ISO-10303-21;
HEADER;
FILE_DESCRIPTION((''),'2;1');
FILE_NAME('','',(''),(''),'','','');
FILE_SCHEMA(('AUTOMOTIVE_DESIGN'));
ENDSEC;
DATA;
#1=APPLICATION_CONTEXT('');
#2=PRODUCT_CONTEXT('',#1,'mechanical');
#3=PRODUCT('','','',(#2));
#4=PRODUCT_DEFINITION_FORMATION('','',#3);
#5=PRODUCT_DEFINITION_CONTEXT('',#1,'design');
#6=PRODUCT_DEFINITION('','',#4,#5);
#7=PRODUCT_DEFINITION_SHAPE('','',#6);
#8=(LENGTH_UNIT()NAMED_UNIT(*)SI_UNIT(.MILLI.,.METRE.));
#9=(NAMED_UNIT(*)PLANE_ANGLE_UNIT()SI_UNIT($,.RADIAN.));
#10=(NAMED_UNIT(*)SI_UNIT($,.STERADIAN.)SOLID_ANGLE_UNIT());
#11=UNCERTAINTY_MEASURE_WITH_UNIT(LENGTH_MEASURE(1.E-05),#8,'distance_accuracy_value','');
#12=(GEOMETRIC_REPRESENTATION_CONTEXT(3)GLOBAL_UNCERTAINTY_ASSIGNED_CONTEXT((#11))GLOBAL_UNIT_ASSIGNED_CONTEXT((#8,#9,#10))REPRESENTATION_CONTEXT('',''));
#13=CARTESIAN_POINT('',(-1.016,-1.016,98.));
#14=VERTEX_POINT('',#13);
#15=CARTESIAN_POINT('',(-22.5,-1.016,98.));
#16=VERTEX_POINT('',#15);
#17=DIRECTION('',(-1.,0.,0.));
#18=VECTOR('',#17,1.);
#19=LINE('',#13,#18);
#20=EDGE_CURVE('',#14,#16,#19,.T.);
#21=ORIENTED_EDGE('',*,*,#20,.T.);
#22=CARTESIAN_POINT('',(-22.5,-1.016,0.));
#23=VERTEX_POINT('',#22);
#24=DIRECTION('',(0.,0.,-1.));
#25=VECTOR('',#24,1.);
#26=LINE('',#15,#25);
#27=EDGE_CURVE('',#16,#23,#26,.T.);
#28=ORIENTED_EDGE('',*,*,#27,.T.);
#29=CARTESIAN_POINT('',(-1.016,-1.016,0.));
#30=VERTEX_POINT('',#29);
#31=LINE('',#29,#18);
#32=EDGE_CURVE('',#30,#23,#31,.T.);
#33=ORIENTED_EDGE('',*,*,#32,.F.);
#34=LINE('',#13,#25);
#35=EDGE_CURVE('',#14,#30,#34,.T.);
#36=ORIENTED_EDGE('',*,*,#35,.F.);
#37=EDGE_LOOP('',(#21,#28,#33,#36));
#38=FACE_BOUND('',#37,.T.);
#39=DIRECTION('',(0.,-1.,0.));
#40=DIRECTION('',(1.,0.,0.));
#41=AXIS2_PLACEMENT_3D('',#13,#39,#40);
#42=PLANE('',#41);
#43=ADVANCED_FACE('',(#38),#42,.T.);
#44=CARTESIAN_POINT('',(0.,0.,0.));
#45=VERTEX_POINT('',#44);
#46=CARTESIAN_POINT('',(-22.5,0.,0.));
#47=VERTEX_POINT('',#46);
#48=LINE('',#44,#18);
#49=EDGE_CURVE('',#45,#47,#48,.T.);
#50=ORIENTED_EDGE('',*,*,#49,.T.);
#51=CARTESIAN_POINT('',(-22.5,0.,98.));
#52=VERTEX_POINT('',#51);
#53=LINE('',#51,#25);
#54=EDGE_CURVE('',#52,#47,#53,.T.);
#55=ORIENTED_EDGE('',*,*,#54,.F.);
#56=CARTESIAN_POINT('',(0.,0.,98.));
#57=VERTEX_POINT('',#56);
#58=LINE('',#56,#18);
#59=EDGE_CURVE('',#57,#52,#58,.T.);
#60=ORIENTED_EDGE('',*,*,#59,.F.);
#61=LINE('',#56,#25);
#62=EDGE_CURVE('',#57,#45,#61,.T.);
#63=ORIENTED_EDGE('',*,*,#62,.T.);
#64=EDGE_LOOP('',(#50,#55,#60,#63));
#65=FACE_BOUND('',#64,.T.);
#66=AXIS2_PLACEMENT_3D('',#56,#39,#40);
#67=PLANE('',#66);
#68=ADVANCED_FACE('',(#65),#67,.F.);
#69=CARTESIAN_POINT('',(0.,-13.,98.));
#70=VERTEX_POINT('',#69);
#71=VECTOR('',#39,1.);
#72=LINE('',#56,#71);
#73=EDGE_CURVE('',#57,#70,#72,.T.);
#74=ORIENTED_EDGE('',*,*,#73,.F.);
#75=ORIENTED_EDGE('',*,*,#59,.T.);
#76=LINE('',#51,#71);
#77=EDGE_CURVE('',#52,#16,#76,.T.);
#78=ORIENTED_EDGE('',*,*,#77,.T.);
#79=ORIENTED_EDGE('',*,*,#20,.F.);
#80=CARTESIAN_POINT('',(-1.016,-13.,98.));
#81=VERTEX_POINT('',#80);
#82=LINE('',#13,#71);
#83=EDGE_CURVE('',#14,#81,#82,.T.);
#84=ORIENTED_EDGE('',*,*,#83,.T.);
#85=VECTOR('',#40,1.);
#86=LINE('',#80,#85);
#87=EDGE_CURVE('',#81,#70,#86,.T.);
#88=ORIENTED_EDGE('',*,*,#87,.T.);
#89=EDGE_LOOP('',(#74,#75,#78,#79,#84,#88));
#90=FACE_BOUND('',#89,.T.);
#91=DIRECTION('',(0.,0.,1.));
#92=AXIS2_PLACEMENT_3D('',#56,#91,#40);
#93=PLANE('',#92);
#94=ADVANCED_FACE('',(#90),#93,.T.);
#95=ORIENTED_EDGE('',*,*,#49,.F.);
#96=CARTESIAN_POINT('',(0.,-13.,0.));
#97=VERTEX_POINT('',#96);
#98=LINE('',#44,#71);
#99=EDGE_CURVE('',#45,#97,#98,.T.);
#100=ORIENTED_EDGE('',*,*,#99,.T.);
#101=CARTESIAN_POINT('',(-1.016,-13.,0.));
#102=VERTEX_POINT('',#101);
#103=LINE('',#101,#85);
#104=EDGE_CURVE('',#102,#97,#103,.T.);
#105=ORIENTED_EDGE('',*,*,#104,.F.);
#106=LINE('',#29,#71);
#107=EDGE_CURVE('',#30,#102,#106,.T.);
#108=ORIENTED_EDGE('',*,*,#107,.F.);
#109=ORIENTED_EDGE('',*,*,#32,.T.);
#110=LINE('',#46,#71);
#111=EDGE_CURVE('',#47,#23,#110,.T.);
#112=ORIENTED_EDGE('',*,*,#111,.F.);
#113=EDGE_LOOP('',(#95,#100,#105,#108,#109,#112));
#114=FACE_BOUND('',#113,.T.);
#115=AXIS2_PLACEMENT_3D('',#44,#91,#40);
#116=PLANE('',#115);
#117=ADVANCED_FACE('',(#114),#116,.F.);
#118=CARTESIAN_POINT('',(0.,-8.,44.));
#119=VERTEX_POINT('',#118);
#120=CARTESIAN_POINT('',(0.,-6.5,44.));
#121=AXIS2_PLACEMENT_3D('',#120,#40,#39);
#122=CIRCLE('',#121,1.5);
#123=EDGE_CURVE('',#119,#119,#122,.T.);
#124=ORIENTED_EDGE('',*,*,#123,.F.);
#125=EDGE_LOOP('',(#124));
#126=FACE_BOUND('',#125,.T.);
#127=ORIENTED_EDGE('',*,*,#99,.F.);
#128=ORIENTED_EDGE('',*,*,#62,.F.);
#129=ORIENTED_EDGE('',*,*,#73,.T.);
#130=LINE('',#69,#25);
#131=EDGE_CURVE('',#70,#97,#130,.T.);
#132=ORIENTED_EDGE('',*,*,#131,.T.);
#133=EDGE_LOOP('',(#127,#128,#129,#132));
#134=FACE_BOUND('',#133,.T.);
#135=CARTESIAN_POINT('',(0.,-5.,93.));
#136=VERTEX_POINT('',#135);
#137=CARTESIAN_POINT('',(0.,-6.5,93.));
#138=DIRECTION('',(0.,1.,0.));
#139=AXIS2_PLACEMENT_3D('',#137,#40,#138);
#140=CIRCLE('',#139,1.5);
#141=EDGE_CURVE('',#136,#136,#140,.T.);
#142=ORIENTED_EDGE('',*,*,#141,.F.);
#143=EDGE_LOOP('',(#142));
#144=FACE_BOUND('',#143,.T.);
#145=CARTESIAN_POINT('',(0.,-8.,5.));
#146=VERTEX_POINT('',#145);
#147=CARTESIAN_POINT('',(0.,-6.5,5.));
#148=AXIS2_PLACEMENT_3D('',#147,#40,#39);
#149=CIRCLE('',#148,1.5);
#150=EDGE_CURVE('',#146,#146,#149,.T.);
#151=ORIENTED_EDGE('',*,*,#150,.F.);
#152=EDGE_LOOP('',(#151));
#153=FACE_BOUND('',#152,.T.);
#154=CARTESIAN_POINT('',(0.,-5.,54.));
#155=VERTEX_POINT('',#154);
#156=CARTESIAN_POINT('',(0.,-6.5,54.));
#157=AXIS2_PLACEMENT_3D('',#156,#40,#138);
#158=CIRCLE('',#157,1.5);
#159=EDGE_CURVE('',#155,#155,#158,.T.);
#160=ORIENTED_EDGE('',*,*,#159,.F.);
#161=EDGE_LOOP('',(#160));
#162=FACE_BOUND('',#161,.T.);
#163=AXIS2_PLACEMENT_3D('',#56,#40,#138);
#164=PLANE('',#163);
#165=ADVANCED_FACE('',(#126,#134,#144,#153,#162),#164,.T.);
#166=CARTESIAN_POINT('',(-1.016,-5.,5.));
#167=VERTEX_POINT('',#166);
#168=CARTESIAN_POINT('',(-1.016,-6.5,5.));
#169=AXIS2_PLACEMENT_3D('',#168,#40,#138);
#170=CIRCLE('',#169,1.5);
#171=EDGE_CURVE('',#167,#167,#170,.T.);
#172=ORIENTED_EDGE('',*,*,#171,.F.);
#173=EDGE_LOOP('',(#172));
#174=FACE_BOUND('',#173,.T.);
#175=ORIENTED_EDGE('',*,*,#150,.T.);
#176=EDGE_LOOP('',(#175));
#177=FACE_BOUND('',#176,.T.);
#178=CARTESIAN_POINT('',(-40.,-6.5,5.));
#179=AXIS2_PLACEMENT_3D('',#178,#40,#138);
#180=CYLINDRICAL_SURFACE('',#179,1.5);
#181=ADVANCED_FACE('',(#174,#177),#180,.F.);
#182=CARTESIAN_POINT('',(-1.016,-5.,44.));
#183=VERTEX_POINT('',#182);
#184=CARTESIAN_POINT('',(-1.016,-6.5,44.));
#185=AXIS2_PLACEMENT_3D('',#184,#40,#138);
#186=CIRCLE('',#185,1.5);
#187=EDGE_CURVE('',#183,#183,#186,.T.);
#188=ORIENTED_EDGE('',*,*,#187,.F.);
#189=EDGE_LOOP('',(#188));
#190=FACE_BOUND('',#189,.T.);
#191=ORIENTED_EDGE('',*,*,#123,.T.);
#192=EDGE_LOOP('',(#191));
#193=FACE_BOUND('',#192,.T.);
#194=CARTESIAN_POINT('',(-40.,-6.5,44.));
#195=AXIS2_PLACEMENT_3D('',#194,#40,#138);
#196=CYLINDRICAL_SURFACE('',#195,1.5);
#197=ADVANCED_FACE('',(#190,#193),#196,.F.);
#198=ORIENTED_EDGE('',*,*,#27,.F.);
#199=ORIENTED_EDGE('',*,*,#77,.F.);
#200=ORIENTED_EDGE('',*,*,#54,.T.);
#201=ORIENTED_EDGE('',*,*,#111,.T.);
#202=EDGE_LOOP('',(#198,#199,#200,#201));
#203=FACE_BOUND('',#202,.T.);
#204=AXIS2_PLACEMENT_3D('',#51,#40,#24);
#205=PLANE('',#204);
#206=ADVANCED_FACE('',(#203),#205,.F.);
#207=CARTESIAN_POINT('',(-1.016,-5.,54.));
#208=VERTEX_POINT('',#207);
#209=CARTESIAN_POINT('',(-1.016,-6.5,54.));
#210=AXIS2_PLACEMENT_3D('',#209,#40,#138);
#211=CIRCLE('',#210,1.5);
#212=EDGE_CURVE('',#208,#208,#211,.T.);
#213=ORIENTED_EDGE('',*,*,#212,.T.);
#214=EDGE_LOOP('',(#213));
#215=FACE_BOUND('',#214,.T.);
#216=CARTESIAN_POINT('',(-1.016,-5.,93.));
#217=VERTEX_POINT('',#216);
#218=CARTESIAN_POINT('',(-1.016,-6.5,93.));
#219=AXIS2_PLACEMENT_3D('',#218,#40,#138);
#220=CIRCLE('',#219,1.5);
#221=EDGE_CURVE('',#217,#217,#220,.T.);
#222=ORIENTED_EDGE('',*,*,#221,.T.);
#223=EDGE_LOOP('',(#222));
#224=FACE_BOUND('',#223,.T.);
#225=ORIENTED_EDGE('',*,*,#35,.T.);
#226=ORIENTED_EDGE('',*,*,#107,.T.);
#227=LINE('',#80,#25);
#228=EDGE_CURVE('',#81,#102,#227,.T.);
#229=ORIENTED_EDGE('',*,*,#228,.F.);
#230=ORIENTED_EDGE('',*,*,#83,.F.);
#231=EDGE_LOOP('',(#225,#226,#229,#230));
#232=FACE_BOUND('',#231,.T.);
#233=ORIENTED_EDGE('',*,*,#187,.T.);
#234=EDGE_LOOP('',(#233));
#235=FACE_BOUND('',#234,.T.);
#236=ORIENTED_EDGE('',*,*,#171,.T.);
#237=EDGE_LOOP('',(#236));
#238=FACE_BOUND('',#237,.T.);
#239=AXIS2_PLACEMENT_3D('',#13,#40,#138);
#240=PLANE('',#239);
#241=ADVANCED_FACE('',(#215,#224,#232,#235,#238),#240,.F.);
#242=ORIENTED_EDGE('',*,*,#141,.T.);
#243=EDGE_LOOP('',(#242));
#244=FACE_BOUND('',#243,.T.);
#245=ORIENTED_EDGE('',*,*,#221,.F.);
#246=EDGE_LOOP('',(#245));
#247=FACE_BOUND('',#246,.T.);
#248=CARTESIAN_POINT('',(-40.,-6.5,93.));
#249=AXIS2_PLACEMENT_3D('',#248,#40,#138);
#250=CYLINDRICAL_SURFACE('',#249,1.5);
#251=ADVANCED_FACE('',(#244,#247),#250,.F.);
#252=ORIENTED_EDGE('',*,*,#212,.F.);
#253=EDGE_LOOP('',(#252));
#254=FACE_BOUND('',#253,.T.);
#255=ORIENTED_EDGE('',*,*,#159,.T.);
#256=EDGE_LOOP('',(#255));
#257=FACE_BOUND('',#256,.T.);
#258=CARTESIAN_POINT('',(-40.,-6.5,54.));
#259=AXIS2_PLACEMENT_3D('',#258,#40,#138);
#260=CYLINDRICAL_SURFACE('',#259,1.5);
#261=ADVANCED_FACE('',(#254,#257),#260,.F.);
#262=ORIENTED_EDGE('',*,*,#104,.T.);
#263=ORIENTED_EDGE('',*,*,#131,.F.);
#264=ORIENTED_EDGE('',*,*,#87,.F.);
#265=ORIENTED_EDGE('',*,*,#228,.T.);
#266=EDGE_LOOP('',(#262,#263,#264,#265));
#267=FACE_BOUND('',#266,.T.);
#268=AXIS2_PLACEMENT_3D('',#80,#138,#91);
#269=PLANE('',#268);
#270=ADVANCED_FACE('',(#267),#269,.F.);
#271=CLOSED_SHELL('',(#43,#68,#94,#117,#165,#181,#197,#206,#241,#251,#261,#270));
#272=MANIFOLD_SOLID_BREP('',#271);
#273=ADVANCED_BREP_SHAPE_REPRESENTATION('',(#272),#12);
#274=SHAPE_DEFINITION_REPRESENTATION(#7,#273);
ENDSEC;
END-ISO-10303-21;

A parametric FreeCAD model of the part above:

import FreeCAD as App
import Part
import Sketcher
from FreeCAD import Vector

doc = App.newDocument("Part")
body = doc.addObject("PartDesign::Body", "Body")

sketch1 = doc.addObject("Sketcher::SketchObject", "Sketch")
body.addObject(sketch1)
sketch1.AttachmentSupport = (doc.XY_Plane, [""])
sketch1.MapMode = "FlatFace"
sketch1.addGeometry(Part.LineSegment(Vector(0, 0, 0), Vector(-22.5, 0, 0)), False)
sketch1.addGeometry(Part.LineSegment(Vector(-22.5, 0, 0), Vector(-22.5, -1, 0)), False)
sketch1.addGeometry(Part.LineSegment(Vector(-22.5, -1, 0), Vector(-1, -1, 0)), False)
sketch1.addGeometry(Part.LineSegment(Vector(-1, -1, 0), Vector(-1, -13, 0)), False)
sketch1.addGeometry(Part.LineSegment(Vector(-1, -13, 0), Vector(0, -13, 0)), False)
sketch1.addGeometry(Part.LineSegment(Vector(0, -13, 0), Vector(0, 0, 0)), False)
sketch1.addConstraint(Sketcher.Constraint("Coincident", 0, 2, 1, 1))
sketch1.addConstraint(Sketcher.Constraint("Coincident", 1, 2, 2, 1))
sketch1.addConstraint(Sketcher.Constraint("Coincident", 2, 2, 3, 1))
sketch1.addConstraint(Sketcher.Constraint("Coincident", 3, 2, 4, 1))
sketch1.addConstraint(Sketcher.Constraint("Coincident", 4, 2, 5, 1))
sketch1.addConstraint(Sketcher.Constraint("Coincident", 5, 2, 0, 1))
sketch1.addConstraint(Sketcher.Constraint("Horizontal", 0))
sketch1.addConstraint(Sketcher.Constraint("Vertical", 1))
sketch1.addConstraint(Sketcher.Constraint("Horizontal", 2))
sketch1.addConstraint(Sketcher.Constraint("Vertical", 3))
sketch1.addConstraint(Sketcher.Constraint("Horizontal", 4))
sketch1.addConstraint(Sketcher.Constraint("Vertical", 5))
sketch1.addConstraint(Sketcher.Constraint("Coincident", 5, 2, -1, 1))
sketch1.addConstraint(Sketcher.Constraint("Equal", 4, 1))
sketch1.addConstraint(Sketcher.Constraint("DistanceY", 5, 1, 5, 2, 13.0))
sketch1.addConstraint(Sketcher.Constraint("DistanceX", 0, 2, 0, 1, 22.5))
sketch1.addConstraint(Sketcher.Constraint("DistanceX", 2, 1, 2, 2, 21.484))
pad1 = doc.addObject("PartDesign::Pad", "Pad")
body.addObject(pad1)
pad1.Profile = sketch1
pad1.Length = 98

sketch2 = doc.addObject("Sketcher::SketchObject", "Sketch001")
body.addObject(sketch2)
sketch2.AttachmentSupport = (doc.YZ_Plane, [""])
sketch2.MapMode = "FlatFace"
sketch2.addGeometry(Part.Circle(Vector(-6.5, 93, 0), Vector(0, 0, 1), 1.5), False)
sketch2.addGeometry(Part.Circle(Vector(-6.5, 54, 0), Vector(0, 0, 1), 1.5), False)
sketch2.addGeometry(Part.Circle(Vector(-6.5, 44, 0), Vector(0, 0, 1), 1.5), False)
sketch2.addGeometry(Part.Circle(Vector(-6.5, 5, 0), Vector(0, 0, 1), 1.5), False)
sketch2.addConstraint(Sketcher.Constraint("Equal", 0, 1))
sketch2.addConstraint(Sketcher.Constraint("Equal", 1, 2))
sketch2.addConstraint(Sketcher.Constraint("Equal", 2, 3))
sketch2.addConstraint(Sketcher.Constraint("Vertical", 0, 3, 1, 3))
sketch2.addConstraint(Sketcher.Constraint("Vertical", 1, 3, 2, 3))
sketch2.addConstraint(Sketcher.Constraint("Vertical", 2, 3, 3, 3))
sketch2.addConstraint(Sketcher.Constraint("Diameter", 0, 3.0))
sketch2.addConstraint(Sketcher.Constraint("DistanceY", -1, 1, 0, 3, 93.0))
sketch2.addConstraint(Sketcher.Constraint("DistanceY", -1, 1, 1, 3, 54.0))
sketch2.addConstraint(Sketcher.Constraint("DistanceY", -1, 1, 2, 3, 44.0))
sketch2.addConstraint(Sketcher.Constraint("DistanceY", -1, 1, 3, 3, 5.0))
sketch2.addConstraint(Sketcher.Constraint("DistanceX", 0, 3, -1, 1, 6.5))
pocket1 = doc.addObject("PartDesign::Pocket", "Pocket")
body.addObject(pocket1)
pocket1.Profile = sketch2
pocket1.Length = 40

doc.recompute()
